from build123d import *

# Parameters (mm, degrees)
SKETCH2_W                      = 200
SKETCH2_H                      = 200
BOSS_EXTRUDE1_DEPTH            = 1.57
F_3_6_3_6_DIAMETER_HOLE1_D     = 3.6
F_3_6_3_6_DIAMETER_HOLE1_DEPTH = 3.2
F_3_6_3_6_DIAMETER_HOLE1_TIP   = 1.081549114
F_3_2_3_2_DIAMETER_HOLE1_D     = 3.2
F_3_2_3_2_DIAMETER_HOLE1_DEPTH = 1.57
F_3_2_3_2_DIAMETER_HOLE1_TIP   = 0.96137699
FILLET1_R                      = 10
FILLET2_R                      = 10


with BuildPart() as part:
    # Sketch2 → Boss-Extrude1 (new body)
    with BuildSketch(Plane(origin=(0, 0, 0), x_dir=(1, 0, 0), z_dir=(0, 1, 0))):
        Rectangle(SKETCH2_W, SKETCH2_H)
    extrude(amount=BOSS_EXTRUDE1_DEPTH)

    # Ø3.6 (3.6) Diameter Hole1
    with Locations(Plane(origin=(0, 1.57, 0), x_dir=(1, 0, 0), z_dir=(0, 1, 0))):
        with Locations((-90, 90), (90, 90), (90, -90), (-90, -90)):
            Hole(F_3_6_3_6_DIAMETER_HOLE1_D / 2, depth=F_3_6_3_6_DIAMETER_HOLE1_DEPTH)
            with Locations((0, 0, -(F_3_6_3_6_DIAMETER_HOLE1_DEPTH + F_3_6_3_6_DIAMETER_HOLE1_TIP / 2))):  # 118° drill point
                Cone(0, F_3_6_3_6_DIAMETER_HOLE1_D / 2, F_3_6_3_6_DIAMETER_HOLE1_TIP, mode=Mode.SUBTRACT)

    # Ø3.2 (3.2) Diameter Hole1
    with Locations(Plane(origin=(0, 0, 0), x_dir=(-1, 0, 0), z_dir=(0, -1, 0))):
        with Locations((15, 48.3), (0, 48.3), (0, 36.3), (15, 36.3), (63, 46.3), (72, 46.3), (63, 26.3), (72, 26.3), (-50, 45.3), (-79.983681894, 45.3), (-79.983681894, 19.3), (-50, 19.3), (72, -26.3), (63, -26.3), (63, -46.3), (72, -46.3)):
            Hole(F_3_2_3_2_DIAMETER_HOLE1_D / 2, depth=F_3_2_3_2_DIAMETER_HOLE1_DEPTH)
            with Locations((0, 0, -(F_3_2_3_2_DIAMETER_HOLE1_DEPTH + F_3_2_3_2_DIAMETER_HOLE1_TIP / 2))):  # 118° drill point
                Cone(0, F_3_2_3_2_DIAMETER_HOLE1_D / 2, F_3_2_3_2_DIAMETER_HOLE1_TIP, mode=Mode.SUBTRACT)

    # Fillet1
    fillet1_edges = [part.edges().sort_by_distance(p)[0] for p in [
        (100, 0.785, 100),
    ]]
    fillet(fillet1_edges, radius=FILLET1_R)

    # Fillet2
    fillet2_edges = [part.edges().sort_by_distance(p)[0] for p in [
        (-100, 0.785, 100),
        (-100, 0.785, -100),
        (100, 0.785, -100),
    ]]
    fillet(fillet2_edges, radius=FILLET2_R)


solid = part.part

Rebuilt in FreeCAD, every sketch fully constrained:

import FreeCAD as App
import Part
import Sketcher

V = App.Vector


def edges_at(feature, points):
    """Names of the edges that pass closest to the given points."""
    edges = feature.Shape.Edges
    near = lambda p: min(range(len(edges)), key=lambda i: edges[i].distToShape(Part.Vertex(*p))[0])
    return sorted({f"Edge{near(p) + 1}" for p in points})


def add_polygon(sketch, points):
    """Adds a closed chain of lines whose ends are joined by coincident constraints."""
    first, n = sketch.GeometryCount, len(points)
    for a, b in zip(points, points[1:] + points[:1]):
        sketch.addGeometry(Part.LineSegment(App.Vector(*a, 0), App.Vector(*b, 0)), False)
    for i in range(n):
        sketch.addConstraint(Sketcher.Constraint("Coincident", first + i, 2, first + (i + 1) % n, 1))

doc = App.newDocument("Part")
params = doc.addObject("Spreadsheet::Sheet", "Params")
for row, (alias, value) in enumerate([
    ("sketch1_width", "200 mm"),
    ("pad1_length", "1.57 mm"),
    ("sketch2_diameter", "3.6 mm"),
    ("hole_diameter", "3.6 mm"),
    ("hole_depth", "3.2 mm"),
    ("sketch3_diameter", "3.2 mm"),
    ("hole2_diameter", "3.2 mm"),
    ("hole2_depth", "1.57 mm"),
    ("fillet_radius", "10 mm"),
    ("fillet2_radius", "10 mm"),
], start=1):
    params.set(f"A{row}", alias)
    params.set(f"B{row}", "=" + value)
    params.setAlias(f"B{row}", alias)

body = doc.addObject("PartDesign::Body", "Body")

# Sketch on XZ plane
sketch1 = doc.addObject("Sketcher::SketchObject", "Sketch")
body.addObject(sketch1)
sketch1.AttachmentSupport = (doc.XZ_Plane, [""])
sketch1.MapMode = "FlatFace"
add_polygon(sketch1, [(-100, -100), (-100, 100), (100, 100), (100, -100)])  # lines 0-3
sketch1.addConstraint(Sketcher.Constraint("Vertical", 0))
sketch1.addConstraint(Sketcher.Constraint("Horizontal", 1))
sketch1.addConstraint(Sketcher.Constraint("Vertical", 2))
sketch1.addConstraint(Sketcher.Constraint("Horizontal", 3))
sketch1.addConstraint(Sketcher.Constraint("Symmetric", 0, 2, 2, 2, -1, 1))
sketch1.addConstraint(Sketcher.Constraint("Equal", 3, 0))
sketch1.addConstraint(Sketcher.Constraint("DistanceX", 1, 1, 1, 2, 200.0))
sketch1.setExpression("Constraints[10]", "Params.sketch1_width")
pad1 = doc.addObject("PartDesign::Pad", "Pad")
body.addObject(pad1)
pad1.Profile = sketch1
pad1.setExpression("Length", "Params.pad1_length")
pad1.Reversed = True

# Sketch on XZ plane
sketch2 = doc.addObject("Sketcher::SketchObject", "Sketch001")
body.addObject(sketch2)
sketch2.AttachmentSupport = (doc.XZ_Plane, [""])
sketch2.MapMode = "FlatFace"
sketch2.AttachmentOffset = App.Placement(V(0, 0, -1.57), App.Rotation())
sketch2.addGeometry(Part.Circle(V(-90, -90, 0), V(0, 0, 1), 1.8), False)
sketch2.addGeometry(Part.Circle(V(90, -90, 0), V(0, 0, 1), 1.8), False)
sketch2.addGeometry(Part.Circle(V(90, 90, 0), V(0, 0, 1), 1.8), False)
sketch2.addGeometry(Part.Circle(V(-90, 90, 0), V(0, 0, 1), 1.8), False)
sketch2.addConstraint(Sketcher.Constraint("Equal", 0, 1))
sketch2.addConstraint(Sketcher.Constraint("Equal", 1, 2))
sketch2.addConstraint(Sketcher.Constraint("Equal", 2, 3))
sketch2.addConstraint(Sketcher.Constraint("Symmetric", 0, 3, 2, 3, -1, 1))
sketch2.addConstraint(Sketcher.Constraint("Symmetric", 1, 3, 3, 3, -1, 1))
sketch2.addConstraint(Sketcher.Constraint("Symmetric", 0, 3, 1, 3, -2))
sketch2.addConstraint(Sketcher.Constraint("Diameter", 0, 3.6))
sketch2.addConstraint(Sketcher.Constraint("DistanceX", 0, 3, -1, 1, 90.0))
sketch2.addConstraint(Sketcher.Constraint("DistanceY", 0, 3, -1, 1, 90.0))
sketch2.setExpression("Constraints[6]", "Params.sketch2_diameter")
doc.recompute()
hole = doc.addObject("PartDesign::Hole", "Hole")
body.addObject(hole)
hole.Profile = sketch2
hole.ThreadType = "None"
hole.setExpression("Diameter", "Params.hole_diameter")
hole.DepthType = "Dimension"
hole.setExpression("Depth", "Params.hole_depth")
hole.DrillPoint = "Angled"
hole.DrillPointAngle = 118
hole.Reversed = True

# Sketch on XZ plane
sketch3 = doc.addObject("Sketcher::SketchObject", "Sketch002")
body.addObject(sketch3)
sketch3.AttachmentSupport = (doc.XZ_Plane, [""])
sketch3.MapMode = "FlatFace"
sketch3.addGeometry(Part.Circle(V(-15, -48.3, 0), V(0, 0, 1), 1.6), False)
sketch3.addGeometry(Part.Circle(V(0, -48.3, 0), V(0, 0, 1), 1.6), False)
sketch3.addGeometry(Part.Circle(V(0, -36.3, 0), V(0, 0, 1), 1.6), False)
sketch3.addGeometry(Part.Circle(V(-15, -36.3, 0), V(0, 0, 1), 1.6), False)
sketch3.addGeometry(Part.Circle(V(-63, -46.3, 0), V(0, 0, 1), 1.6), False)
sketch3.addGeometry(Part.Circle(V(-72, -46.3, 0), V(0, 0, 1), 1.6), False)
sketch3.addGeometry(Part.Circle(V(-63, -26.3, 0), V(0, 0, 1), 1.6), False)
sketch3.addGeometry(Part.Circle(V(-72, -26.3, 0), V(0, 0, 1), 1.6), False)
sketch3.addGeometry(Part.Circle(V(50, -45.3, 0), V(0, 0, 1), 1.6), False)
sketch3.addGeometry(Part.Circle(V(79.983682, -45.3, 0), V(0, 0, 1), 1.6), False)
sketch3.addGeometry(Part.Circle(V(79.983682, -19.3, 0), V(0, 0, 1), 1.6), False)
sketch3.addGeometry(Part.Circle(V(50, -19.3, 0), V(0, 0, 1), 1.6), False)
sketch3.addGeometry(Part.Circle(V(-72, 26.3, 0), V(0, 0, 1), 1.6), False)
sketch3.addGeometry(Part.Circle(V(-63, 26.3, 0), V(0, 0, 1), 1.6), False)
sketch3.addGeometry(Part.Circle(V(-63, 46.3, 0), V(0, 0, 1), 1.6), False)
sketch3.addGeometry(Part.Circle(V(-72, 46.3, 0), V(0, 0, 1), 1.6), False)
sketch3.addConstraint(Sketcher.Constraint("Equal", 0, 1))
sketch3.addConstraint(Sketcher.Constraint("Equal", 1, 2))
sketch3.addConstraint(Sketcher.Constraint("Equal", 2, 3))
sketch3.addConstraint(Sketcher.Constraint("Equal", 3, 4))
sketch3.addConstraint(Sketcher.Constraint("Equal", 4, 5))
sketch3.addConstraint(Sketcher.Constraint("Equal", 5, 6))
sketch3.addConstraint(Sketcher.Constraint("Equal", 6, 7))
sketch3.addConstraint(Sketcher.Constraint("Equal", 7, 8))
sketch3.addConstraint(Sketcher.Constraint("Equal", 8, 9))
sketch3.addConstraint(Sketcher.Constraint("Equal", 9, 10))
sketch3.addConstraint(Sketcher.Constraint("Equal", 10, 11))
sketch3.addConstraint(Sketcher.Constraint("Equal", 11, 12))
sketch3.addConstraint(Sketcher.Constraint("Equal", 12, 13))
sketch3.addConstraint(Sketcher.Constraint("Equal", 13, 14))
sketch3.addConstraint(Sketcher.Constraint("Equal", 14, 15))
sketch3.addConstraint(Sketcher.Constraint("Symmetric", 7, 3, 12, 3, -1))
sketch3.addConstraint(Sketcher.Constraint("Symmetric", 6, 3, 13, 3, -1))
sketch3.addConstraint(Sketcher.Constraint("Symmetric", 4, 3, 14, 3, -1))
sketch3.addConstraint(Sketcher.Constraint("Symmetric", 5, 3, 15, 3, -1))
sketch3.addConstraint(Sketcher.Constraint("PointOnObject", 1, 3, -2))
sketch3.addConstraint(Sketcher.Constraint("PointOnObject", 2, 3, -2))
sketch3.addConstraint(Sketcher.Constraint("Horizontal", 0, 3, 1, 3))
sketch3.addConstraint(Sketcher.Constraint("Horizontal", 2, 3, 3, 3))
sketch3.addConstraint(Sketcher.Constraint("Horizontal", 4, 3, 5, 3))
sketch3.addConstraint(Sketcher.Constraint("Horizontal", 6, 3, 7, 3))
sketch3.addConstraint(Sketcher.Constraint("Horizontal", 8, 3, 9, 3))
sketch3.addConstraint(Sketcher.Constraint("Horizontal", 10, 3, 11, 3))
sketch3.addConstraint(Sketcher.Constraint("Vertical", 0, 3, 3, 3))
sketch3.addConstraint(Sketcher.Constraint("Vertical", 4, 3, 6, 3))
sketch3.addConstraint(Sketcher.Constraint("Vertical", 5, 3, 7, 3))
sketch3.addConstraint(Sketcher.Constraint("Vertical", 9, 3, 10, 3))
sketch3.addConstraint(Sketcher.Constraint("Vertical", 8, 3, 11, 3))
sketch3.addConstraint(Sketcher.Constraint("Diameter", 0, 3.2))
sketch3.addConstraint(Sketcher.Constraint("DistanceX", 0, 3, -1, 1, 15.0))
sketch3.addConstraint(Sketcher.Constraint("DistanceX", 4, 3, -1, 1, 63.0))
sketch3.addConstraint(Sketcher.Constraint("DistanceX", 5, 3, -1, 1, 72.0))
sketch3.addConstraint(Sketcher.Constraint("DistanceX", -1, 1, 8, 3, 50.0))
sketch3.addConstraint(Sketcher.Constraint("DistanceY", 1, 3, 2, 3, 12.0))
sketch3.addConstraint(Sketcher.Constraint("DistanceY", 0, 3, 4, 3, 2.0))
sketch3.addConstraint(Sketcher.Constraint("DistanceY", 4, 3, 6, 3, 20.0))
sketch3.addConstraint(Sketcher.Constraint("DistanceY", 1, 3, 8, 3, 3.0))
sketch3.addConstraint(Sketcher.Constraint("DistanceY", 9, 3, 10, 3, 26.0))
sketch3.addConstraint(Sketcher.Constraint("DistanceY", 0, 3, -1, 1, 48.3))
sketch3.addConstraint(Sketcher.Constraint("DistanceX", -1, 1, 9, 3, 79.983682))
sketch3.setExpression("Constraints[32]", "Params.sketch3_diameter")
doc.recompute()
hole2 = doc.addObject("PartDesign::Hole", "Hole001")
body.addObject(hole2)
hole2.Profile = sketch3
hole2.ThreadType = "None"
hole2.setExpression("Diameter", "Params.hole2_diameter")
hole2.DepthType = "Dimension"
hole2.setExpression("Depth", "Params.hole2_depth")
hole2.DrillPoint = "Angled"
hole2.DrillPointAngle = 118
doc.recompute()

fillet = doc.addObject("PartDesign::Fillet", "Fillet")
body.addObject(fillet)
fillet.Base = (hole2, edges_at(hole2, [(100, 0.785, 100)]))
fillet.setExpression("Radius", "Params.fillet_radius")
doc.recompute()

fillet2 = doc.addObject("PartDesign::Fillet", "Fillet001")
body.addObject(fillet2)
fillet2.Base = (fillet, edges_at(fillet, [(-100, 0.785, 100), (-100, 0.785, -100), (100, 0.785, -100)]))
fillet2.setExpression("Radius", "Params.fillet2_radius")

doc.recompute()
